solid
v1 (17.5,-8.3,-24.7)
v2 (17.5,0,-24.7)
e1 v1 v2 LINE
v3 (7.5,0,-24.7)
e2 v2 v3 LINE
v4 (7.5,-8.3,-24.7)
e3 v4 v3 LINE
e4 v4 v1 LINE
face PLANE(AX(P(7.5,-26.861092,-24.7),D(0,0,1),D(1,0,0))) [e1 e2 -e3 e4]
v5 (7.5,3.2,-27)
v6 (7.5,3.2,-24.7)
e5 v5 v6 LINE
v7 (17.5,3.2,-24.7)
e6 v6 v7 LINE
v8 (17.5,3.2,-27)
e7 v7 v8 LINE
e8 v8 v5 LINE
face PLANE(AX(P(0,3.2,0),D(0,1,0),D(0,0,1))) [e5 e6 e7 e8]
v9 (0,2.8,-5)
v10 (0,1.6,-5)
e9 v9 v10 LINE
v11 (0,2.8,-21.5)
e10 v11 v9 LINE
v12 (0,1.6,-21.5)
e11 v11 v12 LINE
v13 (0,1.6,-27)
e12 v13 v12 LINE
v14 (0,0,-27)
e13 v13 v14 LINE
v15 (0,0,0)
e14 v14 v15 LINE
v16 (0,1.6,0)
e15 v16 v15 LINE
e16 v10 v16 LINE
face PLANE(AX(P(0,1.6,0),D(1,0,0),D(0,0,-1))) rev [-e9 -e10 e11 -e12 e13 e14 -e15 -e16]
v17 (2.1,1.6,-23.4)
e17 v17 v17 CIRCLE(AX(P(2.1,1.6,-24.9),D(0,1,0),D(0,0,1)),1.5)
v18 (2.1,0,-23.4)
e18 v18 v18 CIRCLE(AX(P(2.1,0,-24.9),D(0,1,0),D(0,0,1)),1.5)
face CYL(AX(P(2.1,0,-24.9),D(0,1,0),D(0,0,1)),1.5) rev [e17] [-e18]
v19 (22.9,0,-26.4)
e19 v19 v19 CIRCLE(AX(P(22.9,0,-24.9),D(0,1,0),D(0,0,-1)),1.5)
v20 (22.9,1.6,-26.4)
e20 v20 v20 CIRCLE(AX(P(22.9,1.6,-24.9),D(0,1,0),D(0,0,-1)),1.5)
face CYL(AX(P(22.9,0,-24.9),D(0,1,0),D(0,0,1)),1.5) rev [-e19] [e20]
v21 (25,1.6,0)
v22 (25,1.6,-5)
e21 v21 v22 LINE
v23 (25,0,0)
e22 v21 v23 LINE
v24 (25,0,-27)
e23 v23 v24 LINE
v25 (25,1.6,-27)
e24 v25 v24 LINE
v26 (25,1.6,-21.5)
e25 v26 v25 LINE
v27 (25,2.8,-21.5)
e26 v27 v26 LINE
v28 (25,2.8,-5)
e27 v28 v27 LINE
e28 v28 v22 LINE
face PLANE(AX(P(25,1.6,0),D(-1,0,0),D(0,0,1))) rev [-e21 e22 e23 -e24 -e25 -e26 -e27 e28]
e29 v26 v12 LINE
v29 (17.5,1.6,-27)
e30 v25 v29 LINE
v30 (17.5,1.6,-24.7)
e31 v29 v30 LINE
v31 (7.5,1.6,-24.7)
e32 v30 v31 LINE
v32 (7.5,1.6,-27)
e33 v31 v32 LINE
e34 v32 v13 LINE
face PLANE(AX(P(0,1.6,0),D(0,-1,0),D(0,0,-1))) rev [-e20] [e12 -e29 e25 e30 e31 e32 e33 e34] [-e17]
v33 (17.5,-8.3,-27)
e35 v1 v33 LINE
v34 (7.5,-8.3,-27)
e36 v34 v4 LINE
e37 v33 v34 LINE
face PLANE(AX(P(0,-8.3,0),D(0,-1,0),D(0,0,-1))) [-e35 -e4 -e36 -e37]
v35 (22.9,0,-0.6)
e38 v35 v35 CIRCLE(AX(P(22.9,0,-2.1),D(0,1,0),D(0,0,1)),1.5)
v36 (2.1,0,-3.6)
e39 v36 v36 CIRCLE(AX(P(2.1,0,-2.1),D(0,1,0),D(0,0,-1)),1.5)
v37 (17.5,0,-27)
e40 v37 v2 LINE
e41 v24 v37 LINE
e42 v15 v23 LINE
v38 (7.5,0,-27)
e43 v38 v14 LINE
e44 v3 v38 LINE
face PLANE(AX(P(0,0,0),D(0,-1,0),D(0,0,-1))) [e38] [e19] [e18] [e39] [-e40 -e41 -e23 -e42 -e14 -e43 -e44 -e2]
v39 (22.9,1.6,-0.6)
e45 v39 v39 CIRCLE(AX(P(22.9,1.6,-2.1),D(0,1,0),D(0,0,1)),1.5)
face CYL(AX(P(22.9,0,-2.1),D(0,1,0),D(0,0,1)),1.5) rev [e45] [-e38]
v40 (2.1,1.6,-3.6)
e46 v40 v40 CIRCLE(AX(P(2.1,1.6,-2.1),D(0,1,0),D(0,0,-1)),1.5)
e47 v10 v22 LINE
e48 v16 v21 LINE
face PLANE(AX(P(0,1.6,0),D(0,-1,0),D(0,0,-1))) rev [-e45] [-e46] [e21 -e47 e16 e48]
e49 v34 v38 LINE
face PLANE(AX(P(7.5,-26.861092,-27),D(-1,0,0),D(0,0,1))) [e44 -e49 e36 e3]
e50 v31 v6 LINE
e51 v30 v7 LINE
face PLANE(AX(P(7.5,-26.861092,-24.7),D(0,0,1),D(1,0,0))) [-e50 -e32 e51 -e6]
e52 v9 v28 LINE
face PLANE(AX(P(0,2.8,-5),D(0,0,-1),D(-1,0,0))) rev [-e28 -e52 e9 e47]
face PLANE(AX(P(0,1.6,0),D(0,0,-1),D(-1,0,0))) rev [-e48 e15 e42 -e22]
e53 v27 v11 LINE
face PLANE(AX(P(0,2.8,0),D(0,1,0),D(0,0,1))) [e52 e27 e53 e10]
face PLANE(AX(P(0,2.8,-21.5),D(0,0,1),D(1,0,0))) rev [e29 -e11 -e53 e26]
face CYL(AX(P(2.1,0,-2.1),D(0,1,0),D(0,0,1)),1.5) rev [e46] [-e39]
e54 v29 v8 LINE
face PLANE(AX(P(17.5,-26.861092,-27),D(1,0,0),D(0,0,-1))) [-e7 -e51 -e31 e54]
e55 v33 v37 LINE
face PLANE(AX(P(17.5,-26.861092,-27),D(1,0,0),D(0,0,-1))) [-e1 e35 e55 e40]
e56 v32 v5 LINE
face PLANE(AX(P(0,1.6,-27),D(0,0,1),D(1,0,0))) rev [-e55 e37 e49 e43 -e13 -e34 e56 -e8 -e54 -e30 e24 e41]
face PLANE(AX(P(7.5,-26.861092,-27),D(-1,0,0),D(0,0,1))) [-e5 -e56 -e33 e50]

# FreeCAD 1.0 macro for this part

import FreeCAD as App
import Part
import Sketcher

V = App.Vector
Q = App.Units.Quantity


def add_polygon(sketch, points):
    """Adds a closed chain of lines whose ends are joined by coincident constraints."""
    first, n = sketch.GeometryCount, len(points)
    for a, b in zip(points, points[1:] + points[:1]):
        sketch.addGeometry(Part.LineSegment(App.Vector(*a, 0), App.Vector(*b, 0)), False)
    for i in range(n):
        sketch.addConstraint(Sketcher.Constraint("Coincident", first + i, 2, first + (i + 1) % n, 1))

doc = App.newDocument("Part")
body = doc.addObject("PartDesign::Body", "Body")

sketch1 = doc.addObject("Sketcher::SketchObject", "Sketch")
body.addObject(sketch1)
sketch1.AttachmentSupport = (doc.XZ_Plane, [""])
sketch1.MapMode = "FlatFace"
add_polygon(sketch1, [(0, -27), (0, 0), (25, 0), (25, -27)])
sketch1.addConstraint([
    Sketcher.Constraint("Vertical", 0),
    Sketcher.Constraint("Horizontal", 1),
    Sketcher.Constraint("Vertical", 2),
    Sketcher.Constraint("Horizontal", 3),
    Sketcher.Constraint("Coincident", 0, 2, -1, 1),
    Sketcher.Constraint("DistanceX", 1, 1, 1, 2, Q("25 mm")),
    Sketcher.Constraint("DistanceY", 0, 1, 0, 2, Q("27 mm")),
])
pad1 = doc.addObject("PartDesign::Pad", "Pad")
body.addObject(pad1)
pad1.Profile = sketch1
pad1.Length = 1.6
pad1.Reversed = True

sketch2 = doc.addObject("Sketcher::SketchObject", "Sketch001")
body.addObject(sketch2)
sketch2.AttachmentSupport = (doc.XZ_Plane, [""])
sketch2.MapMode = "FlatFace"
sketch2.AttachmentOffset = App.Placement(V(0, 0, -1.6), App.Rotation())
add_polygon(sketch2, [(0, -21.5), (0, -5), (25, -5), (25, -21.5)])
sketch2.addConstraint([
    Sketcher.Constraint("Vertical", 0),
    Sketcher.Constraint("Horizontal", 1),
    Sketcher.Constraint("Vertical", 2),
    Sketcher.Constraint("Horizontal", 3),
    Sketcher.Constraint("PointOnObject", 0, 2, -2),
    Sketcher.Constraint("DistanceX", 1, 1, 1, 2, Q("25 mm")),
    Sketcher.Constraint("DistanceY", 0, 1, 0, 2, Q("16.5 mm")),
    Sketcher.Constraint("DistanceY", 0, 2, -1, 1, Q("5 mm")),
])
pad2 = doc.addObject("PartDesign::Pad", "Pad001")
body.addObject(pad2)
pad2.Profile = sketch2
pad2.Length = 1.2
pad2.Reversed = True

sketch3 = doc.addObject("Sketcher::SketchObject", "Sketch002")
body.addObject(sketch3)
sketch3.AttachmentSupport = (doc.XZ_Plane, [""])
sketch3.MapMode = "FlatFace"
sketch3.AttachmentOffset = App.Placement(V(0, 0, -1.6), App.Rotation())
sketch3.addGeometry([
    Part.Circle(V(2.1, -24.9, 0), V(0, 0, 1), 1.5),
    Part.Circle(V(22.9, -24.9, 0), V(0, 0, 1), 1.5),
    Part.Circle(V(22.9, -2.1, 0), V(0, 0, 1), 1.5),
    Part.Circle(V(2.1, -2.1, 0), V(0, 0, 1), 1.5),
], False)
sketch3.addConstraint([
    Sketcher.Constraint("Equal", 0, 1),
    Sketcher.Constraint("Equal", 1, 2),
    Sketcher.Constraint("Equal", 2, 3),
    Sketcher.Constraint("Horizontal", 0, 3, 1, 3),
    Sketcher.Constraint("Horizontal", 2, 3, 3, 3),
    Sketcher.Constraint("Vertical", 1, 3, 2, 3),
    Sketcher.Constraint("Vertical", 0, 3, 3, 3),
    Sketcher.Constraint("Diameter", 0, Q("3 mm")),
    Sketcher.Constraint("DistanceX", -1, 1, 0, 3, Q("2.1 mm")),
    Sketcher.Constraint("DistanceY", 0, 3, -1, 1, Q("24.9 mm")),
    Sketcher.Constraint("DistanceX", -1, 1, 1, 3, Q("22.9 mm")),
    Sketcher.Constraint("DistanceY", 2, 3, -1, 1, Q("2.1 mm")),
])
pocket1 = doc.addObject("PartDesign::Pocket", "Pocket")
body.addObject(pocket1)
pocket1.Profile = sketch3
pocket1.Type = "ThroughAll"
pocket1.Reversed = True

sketch4 = doc.addObject("Sketcher::SketchObject", "Sketch003")
body.addObject(sketch4)
sketch4.AttachmentSupport = (doc.XZ_Plane, [""])
sketch4.MapMode = "FlatFace"
sketch4.AttachmentOffset = App.Placement(V(0, 0, -1.6), App.Rotation())
add_polygon(sketch4, [(7.5, -27), (7.5, -24.7), (17.5, -24.7), (17.5, -27)])
sketch4.addConstraint([
    Sketcher.Constraint("Vertical", 0),
    Sketcher.Constraint("Horizontal", 1),
    Sketcher.Constraint("Vertical", 2),
    Sketcher.Constraint("Horizontal", 3),
    Sketcher.Constraint("DistanceX", 1, 1, 1, 2, Q("10 mm")),
    Sketcher.Constraint("DistanceY", 0, 1, 0, 2, Q("2.3 mm")),
    Sketcher.Constraint("DistanceY", 2, 2, -1, 1, Q("27 mm")),
    Sketcher.Constraint("DistanceX", -1, 1, 0, 2, Q("7.5 mm")),
])
pad3 = doc.addObject("PartDesign::Pad", "Pad002")
body.addObject(pad3)
pad3.Profile = sketch4
pad3.Type = "TwoLengths"
pad3.Length = 1.6
pad3.Length2 = 9.9
pad3.Reversed = True

doc.recompute()
